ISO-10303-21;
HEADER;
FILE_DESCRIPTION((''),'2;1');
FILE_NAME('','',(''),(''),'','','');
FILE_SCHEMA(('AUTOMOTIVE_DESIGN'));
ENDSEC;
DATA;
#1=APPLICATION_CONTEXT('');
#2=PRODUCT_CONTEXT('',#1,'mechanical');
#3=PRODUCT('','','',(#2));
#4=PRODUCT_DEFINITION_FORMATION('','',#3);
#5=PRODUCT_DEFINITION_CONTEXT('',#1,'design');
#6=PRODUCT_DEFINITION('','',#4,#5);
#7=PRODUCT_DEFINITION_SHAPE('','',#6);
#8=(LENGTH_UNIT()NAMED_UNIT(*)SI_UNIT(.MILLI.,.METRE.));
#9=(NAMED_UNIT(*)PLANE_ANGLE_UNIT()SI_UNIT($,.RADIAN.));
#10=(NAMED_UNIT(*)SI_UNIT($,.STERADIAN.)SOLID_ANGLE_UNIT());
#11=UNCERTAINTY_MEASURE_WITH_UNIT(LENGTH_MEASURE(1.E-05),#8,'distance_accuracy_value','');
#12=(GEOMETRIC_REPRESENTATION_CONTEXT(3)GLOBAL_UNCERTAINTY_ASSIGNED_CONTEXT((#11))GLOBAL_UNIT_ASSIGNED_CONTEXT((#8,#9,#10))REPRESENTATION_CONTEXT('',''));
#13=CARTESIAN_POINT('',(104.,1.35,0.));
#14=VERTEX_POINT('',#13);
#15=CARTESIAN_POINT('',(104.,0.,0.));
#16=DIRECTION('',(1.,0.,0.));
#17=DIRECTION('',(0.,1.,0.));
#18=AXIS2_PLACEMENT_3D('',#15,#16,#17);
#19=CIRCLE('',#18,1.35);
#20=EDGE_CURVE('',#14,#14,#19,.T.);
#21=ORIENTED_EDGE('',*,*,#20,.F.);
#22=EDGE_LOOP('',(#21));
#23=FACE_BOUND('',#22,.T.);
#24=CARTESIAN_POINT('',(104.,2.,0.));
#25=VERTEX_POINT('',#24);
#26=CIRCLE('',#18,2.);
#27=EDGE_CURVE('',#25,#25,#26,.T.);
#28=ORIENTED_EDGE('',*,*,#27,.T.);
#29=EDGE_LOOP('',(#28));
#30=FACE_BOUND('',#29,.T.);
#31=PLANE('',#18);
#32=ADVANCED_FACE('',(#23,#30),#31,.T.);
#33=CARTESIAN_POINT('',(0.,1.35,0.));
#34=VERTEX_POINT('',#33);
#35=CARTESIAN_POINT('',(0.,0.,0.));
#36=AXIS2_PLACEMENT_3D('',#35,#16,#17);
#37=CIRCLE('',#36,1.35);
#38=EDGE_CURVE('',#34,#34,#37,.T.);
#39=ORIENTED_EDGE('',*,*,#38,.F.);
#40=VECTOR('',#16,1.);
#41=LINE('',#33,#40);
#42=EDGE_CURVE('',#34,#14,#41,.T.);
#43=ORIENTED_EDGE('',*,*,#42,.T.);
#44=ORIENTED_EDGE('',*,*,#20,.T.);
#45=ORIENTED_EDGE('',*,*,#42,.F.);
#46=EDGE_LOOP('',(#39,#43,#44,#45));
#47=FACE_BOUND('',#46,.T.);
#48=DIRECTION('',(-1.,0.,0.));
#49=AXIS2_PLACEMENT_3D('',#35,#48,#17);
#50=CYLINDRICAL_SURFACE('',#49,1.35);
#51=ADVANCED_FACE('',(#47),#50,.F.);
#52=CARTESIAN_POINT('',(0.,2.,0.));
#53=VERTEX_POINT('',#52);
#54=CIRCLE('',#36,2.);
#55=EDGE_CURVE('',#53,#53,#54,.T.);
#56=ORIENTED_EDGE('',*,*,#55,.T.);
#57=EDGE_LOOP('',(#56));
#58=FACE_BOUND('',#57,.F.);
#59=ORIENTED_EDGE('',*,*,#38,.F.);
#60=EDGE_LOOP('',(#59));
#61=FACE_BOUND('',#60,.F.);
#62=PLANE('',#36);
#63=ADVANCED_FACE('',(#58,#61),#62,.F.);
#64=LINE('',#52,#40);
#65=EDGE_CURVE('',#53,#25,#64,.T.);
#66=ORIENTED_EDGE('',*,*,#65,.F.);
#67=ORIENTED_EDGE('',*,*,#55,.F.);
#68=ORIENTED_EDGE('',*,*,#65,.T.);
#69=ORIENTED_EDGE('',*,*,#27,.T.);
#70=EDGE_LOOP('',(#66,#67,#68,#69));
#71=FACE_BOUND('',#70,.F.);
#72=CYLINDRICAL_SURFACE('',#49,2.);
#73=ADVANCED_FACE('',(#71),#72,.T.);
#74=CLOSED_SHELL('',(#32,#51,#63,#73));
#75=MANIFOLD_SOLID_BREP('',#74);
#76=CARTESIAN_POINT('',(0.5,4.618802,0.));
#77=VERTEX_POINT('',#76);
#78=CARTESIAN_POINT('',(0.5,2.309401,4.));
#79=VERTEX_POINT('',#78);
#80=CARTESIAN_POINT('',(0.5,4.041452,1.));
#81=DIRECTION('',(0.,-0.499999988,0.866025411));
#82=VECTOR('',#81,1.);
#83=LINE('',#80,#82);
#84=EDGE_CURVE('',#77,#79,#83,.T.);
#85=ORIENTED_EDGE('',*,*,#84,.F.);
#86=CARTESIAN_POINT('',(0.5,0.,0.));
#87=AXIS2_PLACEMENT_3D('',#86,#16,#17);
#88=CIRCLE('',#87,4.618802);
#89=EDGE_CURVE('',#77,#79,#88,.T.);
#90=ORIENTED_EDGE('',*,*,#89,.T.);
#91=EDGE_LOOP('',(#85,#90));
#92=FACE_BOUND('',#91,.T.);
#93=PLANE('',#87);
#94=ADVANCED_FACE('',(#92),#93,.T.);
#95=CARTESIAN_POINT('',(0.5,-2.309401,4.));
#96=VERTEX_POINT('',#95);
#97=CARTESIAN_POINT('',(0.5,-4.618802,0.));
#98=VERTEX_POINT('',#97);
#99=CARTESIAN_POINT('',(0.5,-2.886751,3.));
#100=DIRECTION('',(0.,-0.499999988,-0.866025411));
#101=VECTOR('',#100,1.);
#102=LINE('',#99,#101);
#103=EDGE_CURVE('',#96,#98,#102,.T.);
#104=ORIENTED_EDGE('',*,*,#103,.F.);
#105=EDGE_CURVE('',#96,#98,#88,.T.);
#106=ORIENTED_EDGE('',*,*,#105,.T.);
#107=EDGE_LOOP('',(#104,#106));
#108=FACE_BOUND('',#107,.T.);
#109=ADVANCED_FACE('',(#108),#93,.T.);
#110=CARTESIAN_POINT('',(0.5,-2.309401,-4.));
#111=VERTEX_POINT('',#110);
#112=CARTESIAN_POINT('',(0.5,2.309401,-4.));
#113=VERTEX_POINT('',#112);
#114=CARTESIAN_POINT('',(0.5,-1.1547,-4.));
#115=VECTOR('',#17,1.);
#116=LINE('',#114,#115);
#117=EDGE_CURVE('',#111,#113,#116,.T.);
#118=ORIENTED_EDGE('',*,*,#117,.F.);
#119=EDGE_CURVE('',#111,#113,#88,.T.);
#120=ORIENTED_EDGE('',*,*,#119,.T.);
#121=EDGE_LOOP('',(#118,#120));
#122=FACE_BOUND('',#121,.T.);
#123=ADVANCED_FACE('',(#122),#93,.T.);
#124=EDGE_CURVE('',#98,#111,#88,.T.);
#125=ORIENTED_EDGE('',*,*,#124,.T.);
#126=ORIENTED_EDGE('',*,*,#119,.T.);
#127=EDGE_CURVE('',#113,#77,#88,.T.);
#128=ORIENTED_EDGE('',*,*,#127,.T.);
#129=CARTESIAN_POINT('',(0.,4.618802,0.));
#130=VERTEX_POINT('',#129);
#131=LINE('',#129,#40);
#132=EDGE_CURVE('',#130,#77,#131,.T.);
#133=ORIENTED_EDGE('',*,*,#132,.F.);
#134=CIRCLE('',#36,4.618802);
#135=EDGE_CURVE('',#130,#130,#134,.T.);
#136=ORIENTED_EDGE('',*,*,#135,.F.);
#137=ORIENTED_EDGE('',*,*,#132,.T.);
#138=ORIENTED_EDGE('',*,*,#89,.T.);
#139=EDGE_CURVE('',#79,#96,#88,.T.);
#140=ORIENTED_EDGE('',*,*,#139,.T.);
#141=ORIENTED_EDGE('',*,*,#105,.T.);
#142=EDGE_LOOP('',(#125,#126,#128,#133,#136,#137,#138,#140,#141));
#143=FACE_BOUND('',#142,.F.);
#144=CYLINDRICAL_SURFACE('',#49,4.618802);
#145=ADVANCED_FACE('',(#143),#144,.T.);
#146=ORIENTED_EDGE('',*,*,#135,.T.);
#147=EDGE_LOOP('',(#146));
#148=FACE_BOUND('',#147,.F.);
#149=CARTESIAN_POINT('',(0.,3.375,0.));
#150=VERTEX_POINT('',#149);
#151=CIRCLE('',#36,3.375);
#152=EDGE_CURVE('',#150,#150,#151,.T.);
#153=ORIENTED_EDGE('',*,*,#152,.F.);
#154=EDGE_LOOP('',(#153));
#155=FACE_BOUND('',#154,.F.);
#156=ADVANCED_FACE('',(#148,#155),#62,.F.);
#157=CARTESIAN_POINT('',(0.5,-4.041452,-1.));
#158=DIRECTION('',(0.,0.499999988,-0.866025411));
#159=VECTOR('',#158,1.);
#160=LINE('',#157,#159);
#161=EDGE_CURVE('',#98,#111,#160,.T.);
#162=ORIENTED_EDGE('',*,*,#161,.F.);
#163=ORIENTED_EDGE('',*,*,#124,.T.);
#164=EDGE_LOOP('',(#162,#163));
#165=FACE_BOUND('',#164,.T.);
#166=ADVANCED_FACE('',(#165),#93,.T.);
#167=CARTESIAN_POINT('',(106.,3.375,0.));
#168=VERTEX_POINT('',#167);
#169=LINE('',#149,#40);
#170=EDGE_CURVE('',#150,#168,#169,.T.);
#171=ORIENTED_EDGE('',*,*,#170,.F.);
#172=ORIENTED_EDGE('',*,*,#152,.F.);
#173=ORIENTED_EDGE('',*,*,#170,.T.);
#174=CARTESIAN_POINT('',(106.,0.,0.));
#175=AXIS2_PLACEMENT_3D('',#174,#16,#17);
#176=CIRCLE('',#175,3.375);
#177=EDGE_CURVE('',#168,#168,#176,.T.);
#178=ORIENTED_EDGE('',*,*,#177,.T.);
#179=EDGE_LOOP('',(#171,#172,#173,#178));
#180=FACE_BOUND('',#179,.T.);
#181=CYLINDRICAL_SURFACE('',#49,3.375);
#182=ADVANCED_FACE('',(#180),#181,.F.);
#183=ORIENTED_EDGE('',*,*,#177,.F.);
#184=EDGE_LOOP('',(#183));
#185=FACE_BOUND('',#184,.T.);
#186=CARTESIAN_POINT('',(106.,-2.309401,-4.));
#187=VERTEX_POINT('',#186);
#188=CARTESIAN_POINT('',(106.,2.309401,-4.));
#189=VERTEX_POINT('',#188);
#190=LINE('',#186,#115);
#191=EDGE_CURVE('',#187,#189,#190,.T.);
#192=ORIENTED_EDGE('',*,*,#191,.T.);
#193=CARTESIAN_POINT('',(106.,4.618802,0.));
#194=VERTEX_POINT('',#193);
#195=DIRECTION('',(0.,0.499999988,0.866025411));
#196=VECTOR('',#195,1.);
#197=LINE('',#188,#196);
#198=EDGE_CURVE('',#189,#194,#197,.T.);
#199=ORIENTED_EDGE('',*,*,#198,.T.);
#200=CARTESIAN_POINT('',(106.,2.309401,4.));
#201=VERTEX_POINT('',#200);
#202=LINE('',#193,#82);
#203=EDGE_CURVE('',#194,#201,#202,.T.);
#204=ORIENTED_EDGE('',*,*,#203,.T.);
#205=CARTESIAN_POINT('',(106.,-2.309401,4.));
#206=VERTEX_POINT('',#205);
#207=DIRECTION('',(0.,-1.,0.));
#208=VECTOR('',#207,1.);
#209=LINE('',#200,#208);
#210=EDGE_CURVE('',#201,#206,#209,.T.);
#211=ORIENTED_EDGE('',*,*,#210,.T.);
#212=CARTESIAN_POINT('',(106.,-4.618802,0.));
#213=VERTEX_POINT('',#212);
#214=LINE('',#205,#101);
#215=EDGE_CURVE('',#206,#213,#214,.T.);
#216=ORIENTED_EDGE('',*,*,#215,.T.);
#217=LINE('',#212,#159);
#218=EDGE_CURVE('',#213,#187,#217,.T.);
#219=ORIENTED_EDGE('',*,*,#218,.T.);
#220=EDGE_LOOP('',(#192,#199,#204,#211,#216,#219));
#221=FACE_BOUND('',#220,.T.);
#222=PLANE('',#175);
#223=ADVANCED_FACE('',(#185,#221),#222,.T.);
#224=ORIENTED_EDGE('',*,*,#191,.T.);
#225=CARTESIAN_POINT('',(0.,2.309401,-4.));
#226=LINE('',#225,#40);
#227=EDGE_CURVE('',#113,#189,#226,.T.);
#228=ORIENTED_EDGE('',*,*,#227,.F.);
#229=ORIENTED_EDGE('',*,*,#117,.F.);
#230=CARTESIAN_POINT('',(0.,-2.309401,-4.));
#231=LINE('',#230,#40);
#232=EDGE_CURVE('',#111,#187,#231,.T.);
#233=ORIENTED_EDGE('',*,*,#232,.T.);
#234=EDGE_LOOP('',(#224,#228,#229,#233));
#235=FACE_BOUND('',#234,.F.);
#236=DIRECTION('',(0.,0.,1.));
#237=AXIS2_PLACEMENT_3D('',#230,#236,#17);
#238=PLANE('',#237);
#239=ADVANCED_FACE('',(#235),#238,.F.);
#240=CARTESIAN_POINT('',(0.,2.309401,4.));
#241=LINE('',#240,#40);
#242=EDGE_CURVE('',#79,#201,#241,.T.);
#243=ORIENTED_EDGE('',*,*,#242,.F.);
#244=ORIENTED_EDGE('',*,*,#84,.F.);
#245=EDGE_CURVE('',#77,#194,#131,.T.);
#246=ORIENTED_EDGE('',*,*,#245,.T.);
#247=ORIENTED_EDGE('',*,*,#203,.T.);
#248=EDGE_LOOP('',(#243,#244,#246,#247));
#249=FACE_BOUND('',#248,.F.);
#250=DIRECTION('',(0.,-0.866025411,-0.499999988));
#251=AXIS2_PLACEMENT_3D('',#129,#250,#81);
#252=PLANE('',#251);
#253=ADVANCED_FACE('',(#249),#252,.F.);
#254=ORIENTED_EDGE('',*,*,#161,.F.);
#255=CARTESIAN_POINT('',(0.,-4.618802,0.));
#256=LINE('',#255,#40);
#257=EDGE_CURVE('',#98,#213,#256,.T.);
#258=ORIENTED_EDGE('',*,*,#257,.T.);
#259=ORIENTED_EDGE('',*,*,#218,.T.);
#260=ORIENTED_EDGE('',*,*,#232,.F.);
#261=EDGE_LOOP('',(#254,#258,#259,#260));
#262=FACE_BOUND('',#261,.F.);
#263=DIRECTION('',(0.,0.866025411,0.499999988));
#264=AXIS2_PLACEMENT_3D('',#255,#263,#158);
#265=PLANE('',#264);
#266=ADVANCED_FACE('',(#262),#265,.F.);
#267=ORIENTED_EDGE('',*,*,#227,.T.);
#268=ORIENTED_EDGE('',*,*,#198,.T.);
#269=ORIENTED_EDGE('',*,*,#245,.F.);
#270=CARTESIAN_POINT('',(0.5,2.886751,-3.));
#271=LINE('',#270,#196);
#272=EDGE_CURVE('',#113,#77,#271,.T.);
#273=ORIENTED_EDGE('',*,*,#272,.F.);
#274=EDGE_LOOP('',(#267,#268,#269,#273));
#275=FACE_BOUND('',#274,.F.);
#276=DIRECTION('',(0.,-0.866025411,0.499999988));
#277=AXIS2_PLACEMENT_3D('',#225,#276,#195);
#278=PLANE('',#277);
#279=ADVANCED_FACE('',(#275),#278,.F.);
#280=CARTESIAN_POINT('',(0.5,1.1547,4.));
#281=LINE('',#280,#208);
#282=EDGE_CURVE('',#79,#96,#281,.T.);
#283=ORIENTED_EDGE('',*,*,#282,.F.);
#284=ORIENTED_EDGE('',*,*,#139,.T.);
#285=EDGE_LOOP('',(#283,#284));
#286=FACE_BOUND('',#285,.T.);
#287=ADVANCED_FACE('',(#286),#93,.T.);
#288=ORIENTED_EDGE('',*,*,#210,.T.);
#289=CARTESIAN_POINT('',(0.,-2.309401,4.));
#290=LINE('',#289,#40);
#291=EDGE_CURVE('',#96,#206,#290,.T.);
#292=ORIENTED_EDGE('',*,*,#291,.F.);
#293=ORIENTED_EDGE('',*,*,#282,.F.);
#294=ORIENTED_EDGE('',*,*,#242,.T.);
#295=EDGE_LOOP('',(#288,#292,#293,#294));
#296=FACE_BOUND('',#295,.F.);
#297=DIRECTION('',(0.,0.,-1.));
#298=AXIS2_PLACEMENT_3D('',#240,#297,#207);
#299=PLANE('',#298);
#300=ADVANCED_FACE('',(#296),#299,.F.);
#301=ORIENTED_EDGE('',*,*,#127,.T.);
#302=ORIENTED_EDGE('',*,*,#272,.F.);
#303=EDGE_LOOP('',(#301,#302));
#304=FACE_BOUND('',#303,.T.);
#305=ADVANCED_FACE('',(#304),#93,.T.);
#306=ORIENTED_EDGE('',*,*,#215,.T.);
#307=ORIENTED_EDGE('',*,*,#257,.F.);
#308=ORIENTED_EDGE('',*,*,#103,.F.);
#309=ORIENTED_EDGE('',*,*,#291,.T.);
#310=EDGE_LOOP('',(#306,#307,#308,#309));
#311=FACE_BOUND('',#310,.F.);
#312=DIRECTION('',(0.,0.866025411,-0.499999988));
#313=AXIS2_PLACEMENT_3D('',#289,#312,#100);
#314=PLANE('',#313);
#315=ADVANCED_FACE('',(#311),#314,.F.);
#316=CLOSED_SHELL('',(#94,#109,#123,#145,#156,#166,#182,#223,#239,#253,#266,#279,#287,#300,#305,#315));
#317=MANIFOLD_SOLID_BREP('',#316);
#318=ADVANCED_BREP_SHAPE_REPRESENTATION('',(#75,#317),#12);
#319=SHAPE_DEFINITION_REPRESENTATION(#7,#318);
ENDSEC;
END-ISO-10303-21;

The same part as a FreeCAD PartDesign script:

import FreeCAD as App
import Part
import Sketcher
from FreeCAD import Vector
Q = App.Units.Quantity


def add_polygon(sketch, points):
    """Adds a closed chain of lines whose ends are joined by coincident constraints."""
    first, n = sketch.GeometryCount, len(points)
    for a, b in zip(points, points[1:] + points[:1]):
        sketch.addGeometry(Part.LineSegment(App.Vector(*a, 0), App.Vector(*b, 0)), False)
    for i in range(n):
        sketch.addConstraint(Sketcher.Constraint("Coincident", first + i, 2, first + (i + 1) % n, 1))

doc = App.newDocument("Part")
body = doc.addObject("PartDesign::Body", "Body")

# Sketch on YZ plane
sketch1 = body.newObject("Sketcher::SketchObject", "Sketch")
sketch1.AttachmentSupport = (doc.getObject("YZ_Plane"), [""])
sketch1.MapMode = "FlatFace"
sketch1.addGeometry([
    Part.Circle(Vector(0, 0, 0), Vector(0, 0, 1), 2),
    Part.Circle(Vector(0, 0, 0), Vector(0, 0, 1), 1.4),
], False)
sketch1.addConstraint([
    Sketcher.Constraint("Coincident", 0, 3, -1, 1),
    Sketcher.Constraint("Coincident", 1, 3, -1, 1),
    Sketcher.Constraint("Diameter", 0, Q("4 mm")),
    Sketcher.Constraint("Diameter", 1, Q("2.7 mm")),
])
pad1 = body.newObject("PartDesign::Pad", "Pad")
pad1.Profile = sketch1
pad1.Length = 104
body2 = doc.addObject("PartDesign::Body", "Body001")

# Sketch on YZ plane
sketch2 = body2.newObject("Sketcher::SketchObject", "Sketch001")
sketch2.AttachmentSupport = (doc.getObject("YZ_Plane001"), [""])
sketch2.MapMode = "FlatFace"
add_polygon(sketch2, [(-2.3, 4), (-4.6, 0), (-2.3, -4), (2.3, -4), (4.6, 0), (2.3, 4)])  # lines 0-5
sketch2.addGeometry(Part.Circle(Vector(0, 0, 0), Vector(0, 0, 1), 3.4), False)  # 6
sketch2.addConstraint([
    Sketcher.Constraint("Horizontal", 2),
    Sketcher.Constraint("Horizontal", 5),
    Sketcher.Constraint("Coincident", 6, 3, -1, 1),
    Sketcher.Constraint("Symmetric", 0, 2, 3, 2, -1, 1),
    Sketcher.Constraint("Symmetric", 1, 2, 4, 2, -1, 1),
    Sketcher.Constraint("PointOnObject", 0, 2, -1),
    Sketcher.Constraint("Parallel", 0, 3),
    Sketcher.Constraint("Vertical", 2, 2, 4, 2),
    Sketcher.Constraint("Diameter", 6, Q("6.75 mm")),
    Sketcher.Constraint("Angle", 0, Q("-119.999999 deg")),
    Sketcher.Constraint("DistanceY", 1, 2, -1, 1, Q("4 mm")),
    Sketcher.Constraint("DistanceX", 2, 1, 2, 2, Q("4.618802 mm")),
])
pad2 = body2.newObject("PartDesign::Pad", "Pad001")
pad2.Profile = sketch2
pad2.Length = 106

# Sketch on YZ plane
sketch3 = body2.newObject("Sketcher::SketchObject", "Sketch002")
sketch3.AttachmentSupport = (doc.getObject("YZ_Plane001"), [""])
sketch3.MapMode = "FlatFace"
sketch3.addGeometry([
    Part.Circle(Vector(0, 0, 0), Vector(0, 0, 1), 4.6),
    Part.Circle(Vector(0, 0, 0), Vector(0, 0, 1), 3.4),
], False)
sketch3.addConstraint([
    Sketcher.Constraint("Coincident", 0, 3, -1, 1),
    Sketcher.Constraint("Coincident", 1, 3, -1, 1),
    Sketcher.Constraint("Diameter", 1, Q("6.75 mm")),
    Sketcher.Constraint("Diameter", 0, Q("9.237604 mm")),
])
pad3 = body2.newObject("PartDesign::Pad", "Pad002")
pad3.Profile = sketch3
pad3.Length = 0.5

doc.recompute()
